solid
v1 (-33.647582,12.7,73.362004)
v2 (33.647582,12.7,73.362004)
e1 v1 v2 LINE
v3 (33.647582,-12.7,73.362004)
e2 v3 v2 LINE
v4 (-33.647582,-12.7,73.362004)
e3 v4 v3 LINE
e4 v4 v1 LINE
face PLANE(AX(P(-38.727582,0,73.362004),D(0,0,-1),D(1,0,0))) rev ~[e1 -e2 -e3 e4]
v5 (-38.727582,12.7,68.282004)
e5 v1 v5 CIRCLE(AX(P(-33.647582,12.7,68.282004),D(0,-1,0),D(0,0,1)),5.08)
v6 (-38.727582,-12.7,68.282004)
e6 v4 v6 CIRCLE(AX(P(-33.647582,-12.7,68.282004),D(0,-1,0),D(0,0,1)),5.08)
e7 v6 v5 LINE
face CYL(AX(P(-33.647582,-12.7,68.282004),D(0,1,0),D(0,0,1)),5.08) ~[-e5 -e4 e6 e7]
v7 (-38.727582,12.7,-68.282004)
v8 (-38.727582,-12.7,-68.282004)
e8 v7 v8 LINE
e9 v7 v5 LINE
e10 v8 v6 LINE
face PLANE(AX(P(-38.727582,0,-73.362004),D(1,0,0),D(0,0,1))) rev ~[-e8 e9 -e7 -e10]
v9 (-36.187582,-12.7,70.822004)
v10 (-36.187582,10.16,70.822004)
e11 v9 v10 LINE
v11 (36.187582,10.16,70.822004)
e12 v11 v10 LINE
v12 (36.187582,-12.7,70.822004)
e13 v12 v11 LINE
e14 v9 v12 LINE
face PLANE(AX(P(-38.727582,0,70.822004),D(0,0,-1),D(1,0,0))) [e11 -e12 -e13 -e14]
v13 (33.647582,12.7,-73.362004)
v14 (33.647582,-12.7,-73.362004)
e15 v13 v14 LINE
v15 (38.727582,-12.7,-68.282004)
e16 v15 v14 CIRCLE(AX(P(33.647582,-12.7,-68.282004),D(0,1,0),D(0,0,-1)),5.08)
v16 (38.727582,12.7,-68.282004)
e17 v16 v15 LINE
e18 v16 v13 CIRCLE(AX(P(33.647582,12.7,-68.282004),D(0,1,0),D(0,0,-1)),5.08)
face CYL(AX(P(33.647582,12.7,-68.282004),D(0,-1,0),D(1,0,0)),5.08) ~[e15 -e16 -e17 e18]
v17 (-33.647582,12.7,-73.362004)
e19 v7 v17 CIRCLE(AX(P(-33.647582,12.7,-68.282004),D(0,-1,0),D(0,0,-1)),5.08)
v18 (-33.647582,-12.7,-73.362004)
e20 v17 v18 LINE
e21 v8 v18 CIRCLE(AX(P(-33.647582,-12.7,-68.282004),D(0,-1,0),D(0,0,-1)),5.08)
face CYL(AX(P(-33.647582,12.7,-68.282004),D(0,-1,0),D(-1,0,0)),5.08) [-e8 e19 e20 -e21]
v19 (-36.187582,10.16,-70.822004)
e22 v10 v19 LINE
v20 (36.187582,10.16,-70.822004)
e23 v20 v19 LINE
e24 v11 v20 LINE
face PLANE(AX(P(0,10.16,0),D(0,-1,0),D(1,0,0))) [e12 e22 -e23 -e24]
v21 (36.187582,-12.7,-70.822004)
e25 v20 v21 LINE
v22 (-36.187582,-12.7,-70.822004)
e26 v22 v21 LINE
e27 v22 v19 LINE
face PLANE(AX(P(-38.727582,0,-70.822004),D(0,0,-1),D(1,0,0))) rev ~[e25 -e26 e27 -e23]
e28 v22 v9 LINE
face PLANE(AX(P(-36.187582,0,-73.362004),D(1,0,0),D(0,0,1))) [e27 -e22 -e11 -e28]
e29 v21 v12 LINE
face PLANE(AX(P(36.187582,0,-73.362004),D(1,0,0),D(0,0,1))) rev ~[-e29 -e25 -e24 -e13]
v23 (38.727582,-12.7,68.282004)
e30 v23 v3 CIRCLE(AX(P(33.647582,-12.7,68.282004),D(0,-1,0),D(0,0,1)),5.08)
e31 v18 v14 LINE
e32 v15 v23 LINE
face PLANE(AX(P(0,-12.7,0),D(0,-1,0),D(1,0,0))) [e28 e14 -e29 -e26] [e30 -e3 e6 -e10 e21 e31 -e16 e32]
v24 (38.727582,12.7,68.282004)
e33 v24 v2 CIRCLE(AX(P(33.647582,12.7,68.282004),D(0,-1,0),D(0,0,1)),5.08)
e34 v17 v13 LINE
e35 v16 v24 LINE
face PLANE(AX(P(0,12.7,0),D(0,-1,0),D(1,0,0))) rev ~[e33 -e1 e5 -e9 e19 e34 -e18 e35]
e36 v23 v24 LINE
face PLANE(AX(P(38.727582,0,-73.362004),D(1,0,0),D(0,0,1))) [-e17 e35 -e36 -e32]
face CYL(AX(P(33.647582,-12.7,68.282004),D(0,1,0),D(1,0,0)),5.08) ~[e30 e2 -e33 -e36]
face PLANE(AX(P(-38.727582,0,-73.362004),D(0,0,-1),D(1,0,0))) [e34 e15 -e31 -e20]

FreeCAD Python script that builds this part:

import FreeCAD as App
import Part
import Sketcher

V = App.Vector
Q = App.Units.Quantity


def edges_at(feature, points):
    """Names of the edges that pass closest to the given points."""
    edges = feature.Shape.Edges
    near = lambda p: min(range(len(edges)), key=lambda i: edges[i].distToShape(Part.Vertex(*p))[0])
    return sorted({f"Edge{near(p) + 1}" for p in points})


def faces_at(feature, points):
    """Names of the faces that lie closest to the given points."""
    faces = feature.Shape.Faces
    near = lambda p: min(range(len(faces)), key=lambda i: faces[i].distToShape(Part.Vertex(*p))[0])
    return sorted({f"Face{near(p) + 1}" for p in points})

doc = App.newDocument("Part")
body = doc.addObject("PartDesign::Body", "Body")

# Sketch on XZ plane
sketch1 = body.newObject("Sketcher::SketchObject", "Sketch")
sketch1.AttachmentSupport = (doc.getObject("XZ_Plane"), [""])
sketch1.MapMode = "FlatFace"
sketch1.addGeometry(Part.LineSegment(V(-39, 73, 0), V(-39, -73, 0)), False)
sketch1.addGeometry(Part.LineSegment(V(-39, -73, 0), V(39, -73, 0)), False)
sketch1.addGeometry(Part.LineSegment(V(39, -73, 0), V(39, 73, 0)), False)
sketch1.addGeometry(Part.LineSegment(V(39, 73, 0), V(-39, 73, 0)), False)
sketch1.addConstraint(Sketcher.Constraint("Coincident", 0, 2, 1, 1))
sketch1.addConstraint(Sketcher.Constraint("Coincident", 1, 2, 2, 1))
sketch1.addConstraint(Sketcher.Constraint("Coincident", 2, 2, 3, 1))
sketch1.addConstraint(Sketcher.Constraint("Coincident", 3, 2, 0, 1))
sketch1.addConstraint(Sketcher.Constraint("Vertical", 0))
sketch1.addConstraint(Sketcher.Constraint("Horizontal", 1))
sketch1.addConstraint(Sketcher.Constraint("Vertical", 2))
sketch1.addConstraint(Sketcher.Constraint("Horizontal", 3))
sketch1.addConstraint(Sketcher.Constraint("Symmetric", 0, 2, 2, 2, -1, 1))
sketch1.addConstraint(Sketcher.Constraint("DistanceY", 0, 2, 0, 1, Q("146.724008 mm")))
sketch1.addConstraint(Sketcher.Constraint("DistanceX", 1, 1, 1, 2, Q("77.455164 mm")))
pad1 = body.newObject("PartDesign::Pad", "Pad")
pad1.Profile = sketch1
pad1.Length = Q("1 in")
pad1.Midplane = True
doc.recompute()

thickness = body.newObject("PartDesign::Thickness", "Thickness")
thickness.Base = (pad1, faces_at(pad1, [(0, -12.7, 0)]))
thickness.Value = Q("0.1 in")
thickness.Reversed = True
thickness.Join = "Arc"
doc.recompute()

fillet = body.newObject("PartDesign::Fillet", "Fillet")
fillet.Base = (thickness, edges_at(thickness, [
    (38.728, 0, 73.362),
    (38.728, 0, -73.362),
    (-38.728, 0, 73.362),
    (-38.728, 0, -73.362),
]))
fillet.Radius = Q("0.2 in")

doc.recompute()
